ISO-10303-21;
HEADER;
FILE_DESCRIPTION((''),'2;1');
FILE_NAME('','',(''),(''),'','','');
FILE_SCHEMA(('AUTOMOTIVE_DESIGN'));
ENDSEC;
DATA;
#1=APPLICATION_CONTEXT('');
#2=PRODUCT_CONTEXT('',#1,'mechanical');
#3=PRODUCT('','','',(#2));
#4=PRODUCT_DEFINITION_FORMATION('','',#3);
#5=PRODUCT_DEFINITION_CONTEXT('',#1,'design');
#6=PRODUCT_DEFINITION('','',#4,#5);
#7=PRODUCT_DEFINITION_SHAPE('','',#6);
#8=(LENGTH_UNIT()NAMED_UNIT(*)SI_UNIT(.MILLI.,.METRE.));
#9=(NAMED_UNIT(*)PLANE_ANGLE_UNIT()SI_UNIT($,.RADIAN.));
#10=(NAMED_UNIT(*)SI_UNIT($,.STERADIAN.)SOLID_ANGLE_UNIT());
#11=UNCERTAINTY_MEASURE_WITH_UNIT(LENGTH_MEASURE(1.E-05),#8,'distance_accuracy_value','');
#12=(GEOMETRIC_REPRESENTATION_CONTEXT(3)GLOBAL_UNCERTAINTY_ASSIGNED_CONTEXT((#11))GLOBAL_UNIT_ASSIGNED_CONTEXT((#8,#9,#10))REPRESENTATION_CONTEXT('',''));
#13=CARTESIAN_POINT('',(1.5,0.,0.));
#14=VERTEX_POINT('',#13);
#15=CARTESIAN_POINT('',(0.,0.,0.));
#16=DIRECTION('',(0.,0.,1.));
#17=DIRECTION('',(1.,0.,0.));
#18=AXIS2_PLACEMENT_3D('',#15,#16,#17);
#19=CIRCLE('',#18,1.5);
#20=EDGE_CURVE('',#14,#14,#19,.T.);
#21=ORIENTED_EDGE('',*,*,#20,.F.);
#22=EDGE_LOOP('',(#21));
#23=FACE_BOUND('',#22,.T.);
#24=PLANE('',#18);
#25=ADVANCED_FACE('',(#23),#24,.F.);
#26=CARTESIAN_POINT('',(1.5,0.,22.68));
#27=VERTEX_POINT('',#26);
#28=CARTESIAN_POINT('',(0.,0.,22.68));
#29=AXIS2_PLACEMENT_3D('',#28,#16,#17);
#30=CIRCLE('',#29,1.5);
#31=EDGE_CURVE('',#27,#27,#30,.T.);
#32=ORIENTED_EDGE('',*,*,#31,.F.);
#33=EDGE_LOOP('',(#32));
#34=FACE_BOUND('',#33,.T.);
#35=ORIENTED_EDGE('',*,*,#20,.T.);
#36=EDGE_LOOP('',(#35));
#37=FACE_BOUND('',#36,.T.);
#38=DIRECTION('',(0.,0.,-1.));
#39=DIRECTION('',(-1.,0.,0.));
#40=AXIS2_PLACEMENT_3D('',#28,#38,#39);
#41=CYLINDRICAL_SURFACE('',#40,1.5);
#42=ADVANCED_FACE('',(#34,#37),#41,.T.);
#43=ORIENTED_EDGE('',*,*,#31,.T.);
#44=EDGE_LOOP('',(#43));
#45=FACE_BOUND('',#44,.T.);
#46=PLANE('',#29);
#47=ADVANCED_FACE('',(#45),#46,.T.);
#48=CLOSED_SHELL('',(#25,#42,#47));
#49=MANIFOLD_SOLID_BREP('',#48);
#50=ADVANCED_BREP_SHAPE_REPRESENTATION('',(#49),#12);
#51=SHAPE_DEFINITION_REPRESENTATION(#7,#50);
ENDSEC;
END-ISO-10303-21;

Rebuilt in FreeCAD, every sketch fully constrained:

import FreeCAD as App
import Part
import Sketcher

V = App.Vector
Q = App.Units.Quantity

doc = App.newDocument("Part")
body = doc.addObject("PartDesign::Body", "Body")

# Sketch on XY plane
sketch1 = body.newObject("Sketcher::SketchObject", "Sketch")
sketch1.AttachmentSupport = (doc.getObject("XY_Plane"), [""])
sketch1.MapMode = "FlatFace"
sketch1.addGeometry(Part.Circle(V(0, 0, 0), V(0, 0, 1), 1.5), False)
sketch1.addConstraint(Sketcher.Constraint("Coincident", 0, 3, -1, 1))
sketch1.addConstraint(Sketcher.Constraint("Diameter", 0, Q("3 mm")))
pad1 = body.newObject("PartDesign::Pad", "Pad")
pad1.Profile = sketch1
pad1.Length = 22.68

doc.recompute()
